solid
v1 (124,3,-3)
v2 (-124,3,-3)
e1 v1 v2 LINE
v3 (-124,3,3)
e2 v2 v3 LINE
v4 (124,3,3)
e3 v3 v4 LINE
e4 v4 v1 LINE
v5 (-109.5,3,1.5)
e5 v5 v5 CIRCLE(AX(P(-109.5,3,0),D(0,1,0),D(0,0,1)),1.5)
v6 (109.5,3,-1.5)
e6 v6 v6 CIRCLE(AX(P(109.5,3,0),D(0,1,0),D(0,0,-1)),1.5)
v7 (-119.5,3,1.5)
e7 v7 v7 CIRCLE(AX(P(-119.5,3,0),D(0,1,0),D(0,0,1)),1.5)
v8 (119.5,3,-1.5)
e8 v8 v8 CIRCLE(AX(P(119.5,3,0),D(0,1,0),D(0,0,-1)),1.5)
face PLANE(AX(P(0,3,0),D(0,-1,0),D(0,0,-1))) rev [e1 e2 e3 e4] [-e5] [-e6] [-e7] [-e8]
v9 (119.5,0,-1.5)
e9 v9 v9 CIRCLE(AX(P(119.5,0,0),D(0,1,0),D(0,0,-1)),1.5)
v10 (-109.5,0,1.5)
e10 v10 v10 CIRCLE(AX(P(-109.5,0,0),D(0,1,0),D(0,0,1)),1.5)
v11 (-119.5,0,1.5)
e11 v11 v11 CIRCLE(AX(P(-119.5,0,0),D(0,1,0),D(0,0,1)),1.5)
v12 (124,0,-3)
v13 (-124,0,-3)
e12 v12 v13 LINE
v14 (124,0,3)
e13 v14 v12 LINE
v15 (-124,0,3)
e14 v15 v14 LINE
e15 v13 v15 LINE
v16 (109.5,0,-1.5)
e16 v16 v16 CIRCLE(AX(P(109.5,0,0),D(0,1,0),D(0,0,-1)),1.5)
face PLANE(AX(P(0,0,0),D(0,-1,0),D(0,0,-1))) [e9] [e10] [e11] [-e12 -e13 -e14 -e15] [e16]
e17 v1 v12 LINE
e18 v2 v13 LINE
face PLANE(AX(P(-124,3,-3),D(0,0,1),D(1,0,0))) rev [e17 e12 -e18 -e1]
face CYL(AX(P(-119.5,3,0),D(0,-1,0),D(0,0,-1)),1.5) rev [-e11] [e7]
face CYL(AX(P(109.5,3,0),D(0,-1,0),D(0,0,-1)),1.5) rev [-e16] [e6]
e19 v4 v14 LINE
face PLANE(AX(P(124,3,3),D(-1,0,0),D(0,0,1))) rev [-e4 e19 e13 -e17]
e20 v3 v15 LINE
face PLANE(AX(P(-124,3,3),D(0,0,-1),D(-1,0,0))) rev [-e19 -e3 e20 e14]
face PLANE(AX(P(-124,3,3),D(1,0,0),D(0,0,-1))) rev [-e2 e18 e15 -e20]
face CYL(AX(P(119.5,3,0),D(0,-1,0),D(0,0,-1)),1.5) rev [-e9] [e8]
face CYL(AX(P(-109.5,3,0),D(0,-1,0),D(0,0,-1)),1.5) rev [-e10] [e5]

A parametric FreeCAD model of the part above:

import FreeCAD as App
import Part
import Sketcher
from FreeCAD import Vector
Q = App.Units.Quantity

doc = App.newDocument("Part")
params = doc.addObject("Spreadsheet::Sheet", "Params")
for row, (alias, value) in enumerate([
    ("sketch1_diameter", "3 mm"),
    ("sketch1_width", "248 mm"),
    ("sketch1_height", "6 mm"),
    ("pad1_length", "3 mm"),
], start=1):
    params.set(f"A{row}", alias)
    params.set(f"B{row}", "=" + value)
    params.setAlias(f"B{row}", alias)

body = doc.addObject("PartDesign::Body", "Body")

sketch1 = body.newObject("Sketcher::SketchObject", "Sketch")
sketch1.AttachmentSupport = (doc.getObject("XZ_Plane"), [""])
sketch1.MapMode = "FlatFace"
sketch1.addGeometry([
    Part.LineSegment(Vector(-124, -3, 0), Vector(-124, 3, 0)),
    Part.LineSegment(Vector(-124, 3, 0), Vector(124, 3, 0)),
    Part.LineSegment(Vector(124, 3, 0), Vector(124, -3, 0)),
    Part.LineSegment(Vector(124, -3, 0), Vector(-124, -3, 0)),
    Part.Circle(Vector(-119.5, 0, 0), Vector(0, 0, 1), 1.5),
    Part.Circle(Vector(-109.5, 0, 0), Vector(0, 0, 1), 1.5),
    Part.Circle(Vector(109.5, 0, 0), Vector(0, 0, 1), 1.5),
    Part.Circle(Vector(119.5, 0, 0), Vector(0, 0, 1), 1.5),
], False)
sketch1.addConstraint([
    Sketcher.Constraint("Coincident", 0, 2, 1, 1),
    Sketcher.Constraint("Coincident", 1, 2, 2, 1),
    Sketcher.Constraint("Coincident", 2, 2, 3, 1),
    Sketcher.Constraint("Coincident", 3, 2, 0, 1),
    Sketcher.Constraint("Vertical", 0),
    Sketcher.Constraint("Horizontal", 1),
    Sketcher.Constraint("Vertical", 2),
    Sketcher.Constraint("Horizontal", 3),
    Sketcher.Constraint("Equal", 4, 5),
    Sketcher.Constraint("Equal", 5, 6),
    Sketcher.Constraint("Equal", 6, 7),
    Sketcher.Constraint("Symmetric", 5, 3, 6, 3, -1, 1),
    Sketcher.Constraint("Symmetric", 4, 3, 7, 3, -1, 1),
    Sketcher.Constraint("Symmetric", 0, 2, 2, 2, -1, 1),
    Sketcher.Constraint("PointOnObject", 4, 3, -1),
    Sketcher.Constraint("PointOnObject", 5, 3, -1),
    Sketcher.Constraint("Diameter", 4, Q("3 mm")),
    Sketcher.Constraint("DistanceX", 1, 1, 1, 2, Q("248 mm")),
    Sketcher.Constraint("DistanceY", 0, 1, 0, 2, Q("6 mm")),
    Sketcher.Constraint("DistanceX", 4, 3, 5, 3, Q("10 mm")),
    Sketcher.Constraint("DistanceX", 5, 3, 6, 3, Q("219 mm")),
])
sketch1.setExpression("Constraints[16]", "Params.sketch1_diameter")
sketch1.setExpression("Constraints[17]", "Params.sketch1_width")
sketch1.setExpression("Constraints[18]", "Params.sketch1_height")
pad1 = body.newObject("PartDesign::Pad", "Pad")
pad1.Profile = sketch1
pad1.setExpression("Length", "Params.pad1_length")
pad1.Reversed = True

doc.recompute()
